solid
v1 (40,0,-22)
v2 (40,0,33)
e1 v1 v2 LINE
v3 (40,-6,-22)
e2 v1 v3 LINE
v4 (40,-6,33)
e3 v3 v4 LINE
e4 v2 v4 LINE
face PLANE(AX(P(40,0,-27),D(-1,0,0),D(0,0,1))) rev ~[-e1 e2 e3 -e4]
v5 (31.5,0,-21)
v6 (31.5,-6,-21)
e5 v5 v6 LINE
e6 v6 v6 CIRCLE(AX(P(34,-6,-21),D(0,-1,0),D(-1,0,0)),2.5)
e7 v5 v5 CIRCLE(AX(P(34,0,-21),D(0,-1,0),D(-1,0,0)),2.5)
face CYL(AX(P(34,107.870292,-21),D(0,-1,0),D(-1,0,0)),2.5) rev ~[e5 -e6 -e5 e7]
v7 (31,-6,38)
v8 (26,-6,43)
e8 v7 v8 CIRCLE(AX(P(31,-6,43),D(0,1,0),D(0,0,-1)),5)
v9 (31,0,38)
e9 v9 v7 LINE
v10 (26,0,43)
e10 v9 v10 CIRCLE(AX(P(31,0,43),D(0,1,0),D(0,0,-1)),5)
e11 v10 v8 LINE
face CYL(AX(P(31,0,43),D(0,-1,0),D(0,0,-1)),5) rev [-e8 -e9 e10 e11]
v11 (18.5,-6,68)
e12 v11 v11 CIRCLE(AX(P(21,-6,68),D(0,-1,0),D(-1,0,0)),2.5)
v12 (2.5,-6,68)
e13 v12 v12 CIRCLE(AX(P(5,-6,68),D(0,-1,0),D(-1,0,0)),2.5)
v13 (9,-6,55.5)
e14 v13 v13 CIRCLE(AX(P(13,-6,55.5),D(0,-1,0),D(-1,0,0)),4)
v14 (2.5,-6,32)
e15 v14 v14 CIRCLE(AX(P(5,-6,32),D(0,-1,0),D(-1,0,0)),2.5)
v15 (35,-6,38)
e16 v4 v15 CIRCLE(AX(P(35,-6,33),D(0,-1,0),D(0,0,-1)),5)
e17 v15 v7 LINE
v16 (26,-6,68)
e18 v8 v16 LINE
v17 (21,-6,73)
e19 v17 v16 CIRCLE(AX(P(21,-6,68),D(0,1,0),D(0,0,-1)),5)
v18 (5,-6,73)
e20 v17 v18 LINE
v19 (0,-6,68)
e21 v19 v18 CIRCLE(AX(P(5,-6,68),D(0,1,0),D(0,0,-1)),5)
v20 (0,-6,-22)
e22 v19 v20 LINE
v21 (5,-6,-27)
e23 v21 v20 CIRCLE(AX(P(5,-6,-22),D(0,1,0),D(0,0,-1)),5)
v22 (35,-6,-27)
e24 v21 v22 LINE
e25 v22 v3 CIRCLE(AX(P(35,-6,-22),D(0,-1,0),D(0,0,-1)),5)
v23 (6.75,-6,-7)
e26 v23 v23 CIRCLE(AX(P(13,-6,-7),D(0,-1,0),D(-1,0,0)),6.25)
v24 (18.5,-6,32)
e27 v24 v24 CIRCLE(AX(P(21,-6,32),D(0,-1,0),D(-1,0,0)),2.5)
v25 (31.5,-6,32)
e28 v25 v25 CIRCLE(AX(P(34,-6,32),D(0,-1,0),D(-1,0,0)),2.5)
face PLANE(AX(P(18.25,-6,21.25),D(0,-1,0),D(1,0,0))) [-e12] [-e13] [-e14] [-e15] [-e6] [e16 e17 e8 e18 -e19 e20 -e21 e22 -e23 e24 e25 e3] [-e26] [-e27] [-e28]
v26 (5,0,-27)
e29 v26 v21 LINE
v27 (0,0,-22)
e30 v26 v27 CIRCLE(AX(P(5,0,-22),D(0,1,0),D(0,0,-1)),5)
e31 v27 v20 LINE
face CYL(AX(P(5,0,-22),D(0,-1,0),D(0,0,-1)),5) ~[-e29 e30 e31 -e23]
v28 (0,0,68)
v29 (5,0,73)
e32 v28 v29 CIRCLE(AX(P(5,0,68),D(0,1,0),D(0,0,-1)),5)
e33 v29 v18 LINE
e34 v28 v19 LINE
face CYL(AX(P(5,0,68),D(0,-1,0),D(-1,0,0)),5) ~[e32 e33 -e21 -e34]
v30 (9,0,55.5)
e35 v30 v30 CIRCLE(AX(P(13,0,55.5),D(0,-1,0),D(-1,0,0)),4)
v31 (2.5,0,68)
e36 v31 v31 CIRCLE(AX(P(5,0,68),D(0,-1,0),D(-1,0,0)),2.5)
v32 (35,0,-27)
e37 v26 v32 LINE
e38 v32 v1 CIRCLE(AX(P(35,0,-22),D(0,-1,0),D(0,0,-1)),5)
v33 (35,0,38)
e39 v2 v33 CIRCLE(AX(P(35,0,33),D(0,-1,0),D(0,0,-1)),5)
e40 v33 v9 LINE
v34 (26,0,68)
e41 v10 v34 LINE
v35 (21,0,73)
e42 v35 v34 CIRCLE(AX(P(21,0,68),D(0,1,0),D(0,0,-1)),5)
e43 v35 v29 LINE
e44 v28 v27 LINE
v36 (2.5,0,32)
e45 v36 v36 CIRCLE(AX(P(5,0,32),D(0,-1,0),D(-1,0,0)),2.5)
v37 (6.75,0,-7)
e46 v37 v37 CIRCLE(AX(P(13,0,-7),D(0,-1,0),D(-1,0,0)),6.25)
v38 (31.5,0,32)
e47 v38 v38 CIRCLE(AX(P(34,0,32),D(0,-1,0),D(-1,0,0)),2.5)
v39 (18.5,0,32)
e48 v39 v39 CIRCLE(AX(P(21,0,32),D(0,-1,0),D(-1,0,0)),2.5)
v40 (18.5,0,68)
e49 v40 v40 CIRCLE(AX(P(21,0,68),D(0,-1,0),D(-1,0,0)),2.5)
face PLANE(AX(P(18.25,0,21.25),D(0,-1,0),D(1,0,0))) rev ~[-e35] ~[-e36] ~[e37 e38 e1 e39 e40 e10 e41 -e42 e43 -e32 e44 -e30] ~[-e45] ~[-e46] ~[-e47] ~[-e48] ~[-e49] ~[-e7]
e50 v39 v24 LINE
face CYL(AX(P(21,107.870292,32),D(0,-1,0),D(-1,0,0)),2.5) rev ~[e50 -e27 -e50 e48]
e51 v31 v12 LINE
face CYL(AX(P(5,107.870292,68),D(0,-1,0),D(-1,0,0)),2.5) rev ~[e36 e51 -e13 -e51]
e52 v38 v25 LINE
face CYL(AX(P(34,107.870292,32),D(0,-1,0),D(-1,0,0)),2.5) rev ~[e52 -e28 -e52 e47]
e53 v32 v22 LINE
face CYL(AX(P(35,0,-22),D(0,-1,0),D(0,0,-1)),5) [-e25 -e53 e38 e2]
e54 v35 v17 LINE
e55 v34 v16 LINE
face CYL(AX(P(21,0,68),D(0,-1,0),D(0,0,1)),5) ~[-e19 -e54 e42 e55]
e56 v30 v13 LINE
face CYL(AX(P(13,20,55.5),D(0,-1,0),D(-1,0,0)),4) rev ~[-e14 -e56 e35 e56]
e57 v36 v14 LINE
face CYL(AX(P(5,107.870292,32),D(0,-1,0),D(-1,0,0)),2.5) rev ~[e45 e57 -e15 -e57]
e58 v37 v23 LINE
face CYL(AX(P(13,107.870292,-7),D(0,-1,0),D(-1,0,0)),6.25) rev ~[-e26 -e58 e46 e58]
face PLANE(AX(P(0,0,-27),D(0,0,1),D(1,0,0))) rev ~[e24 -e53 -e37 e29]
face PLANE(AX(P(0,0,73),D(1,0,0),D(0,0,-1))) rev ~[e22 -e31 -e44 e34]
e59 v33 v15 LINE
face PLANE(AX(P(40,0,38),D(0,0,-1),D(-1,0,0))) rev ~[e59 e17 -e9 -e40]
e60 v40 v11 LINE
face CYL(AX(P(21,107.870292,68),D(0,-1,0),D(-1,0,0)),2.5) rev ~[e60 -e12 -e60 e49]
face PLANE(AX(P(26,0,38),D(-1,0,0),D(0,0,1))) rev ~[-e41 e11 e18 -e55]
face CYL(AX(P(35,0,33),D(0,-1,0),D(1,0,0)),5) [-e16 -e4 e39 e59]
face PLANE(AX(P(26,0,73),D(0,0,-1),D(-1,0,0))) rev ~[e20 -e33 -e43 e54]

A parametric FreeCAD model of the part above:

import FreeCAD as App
import Part
import Sketcher
Q = App.Units.Quantity


def edges_at(feature, points):
    """Names of the edges that pass closest to the given points."""
    edges = feature.Shape.Edges
    near = lambda p: min(range(len(edges)), key=lambda i: edges[i].distToShape(Part.Vertex(*p))[0])
    return sorted({f"Edge{near(p) + 1}" for p in points})

doc = App.newDocument("Part")
body = doc.addObject("PartDesign::Body", "Body")

# Sketch on XZ plane
sketch1 = body.newObject("Sketcher::SketchObject", "Sketch")
sketch1.AttachmentSupport = (doc.getObject("XZ_Plane"), [""])
sketch1.MapMode = "FlatFace"
sketch1.addGeometry([
    Part.LineSegment(App.Vector(0, -27, 0), App.Vector(40, -27, 0)),  # 0
    Part.LineSegment(App.Vector(40, -27, 0), App.Vector(40, 38, 0)),  # 1
    Part.LineSegment(App.Vector(40, 38, 0), App.Vector(26, 38, 0)),  # 2
    Part.LineSegment(App.Vector(26, 38, 0), App.Vector(26, 73, 0)),  # 3
    Part.LineSegment(App.Vector(26, 73, 0), App.Vector(0, 73, 0)),  # 4
    Part.LineSegment(App.Vector(0, 73, 0), App.Vector(0, -27, 0)),  # 5
], False)
sketch1.addConstraint([
    Sketcher.Constraint("Coincident", 0, 2, 1, 1),
    Sketcher.Constraint("Coincident", 1, 2, 2, 1),
    Sketcher.Constraint("Coincident", 2, 2, 3, 1),
    Sketcher.Constraint("Coincident", 3, 2, 4, 1),
    Sketcher.Constraint("Coincident", 4, 2, 5, 1),
    Sketcher.Constraint("Coincident", 5, 2, 0, 1),
    Sketcher.Constraint("Horizontal", 0),
    Sketcher.Constraint("Vertical", 1),
    Sketcher.Constraint("Horizontal", 2),
    Sketcher.Constraint("Vertical", 3),
    Sketcher.Constraint("Horizontal", 4),
    Sketcher.Constraint("Vertical", 5),
    Sketcher.Constraint("PointOnObject", 4, 2, -2),
    Sketcher.Constraint("DistanceX", 0, 1, 0, 2, Q("40 mm")),
    Sketcher.Constraint("DistanceX", 2, 2, 2, 1, Q("14 mm")),
    Sketcher.Constraint("DistanceY", 1, 1, 1, 2, Q("65 mm")),
    Sketcher.Constraint("DistanceY", 3, 1, 3, 2, Q("35 mm")),
    Sketcher.Constraint("DistanceY", 0, 2, -1, 1, Q("27 mm")),
])
pad1 = body.newObject("PartDesign::Pad", "Pad")
pad1.Profile = sketch1
pad1.Length = 6

# Sketch on XZ plane
sketch2 = body.newObject("Sketcher::SketchObject", "Sketch001")
sketch2.AttachmentSupport = (doc.getObject("XZ_Plane"), [""])
sketch2.MapMode = "FlatFace"
sketch2.addGeometry(Part.Circle(App.Vector(13, -7, 0), App.Vector(0, 0, 1), 6), False)
sketch2.addConstraint([
    Sketcher.Constraint("Diameter", 0, Q("12.5 mm")),
    Sketcher.Constraint("DistanceX", -1, 1, 0, 3, Q("13 mm")),
    Sketcher.Constraint("DistanceY", 0, 3, -1, 1, Q("7 mm")),
])
doc.recompute()
hole = body.newObject("PartDesign::Hole", "Hole")
hole.Profile = sketch2
hole.ThreadType = "None"
hole.Diameter = 12.5
hole.DepthType = "ThroughAll"
hole.Reversed = True

# Sketch on XZ plane
sketch3 = body.newObject("Sketcher::SketchObject", "Sketch002")
sketch3.AttachmentSupport = (doc.getObject("XZ_Plane"), [""])
sketch3.MapMode = "FlatFace"
sketch3.addGeometry([
    Part.Circle(App.Vector(34, -21, 0), App.Vector(0, 0, 1), 2.5),
    Part.Circle(App.Vector(34, 32, 0), App.Vector(0, 0, 1), 2.5),
], False)
sketch3.addConstraint([
    Sketcher.Constraint("Equal", 0, 1),
    Sketcher.Constraint("Vertical", 0, 3, 1, 3),
    Sketcher.Constraint("Diameter", 0, Q("5 mm")),
    Sketcher.Constraint("DistanceX", -1, 1, 0, 3, Q("34 mm")),
    Sketcher.Constraint("DistanceY", 0, 3, -1, 1, Q("21 mm")),
    Sketcher.Constraint("DistanceY", -1, 1, 1, 3, Q("32 mm")),
])
doc.recompute()
hole2 = body.newObject("PartDesign::Hole", "Hole001")
hole2.Profile = sketch3
hole2.ThreadType = "None"
hole2.Diameter = 5
hole2.DepthType = "ThroughAll"
hole2.Reversed = True

# Sketch on XZ plane
sketch4 = body.newObject("Sketcher::SketchObject", "Sketch003")
sketch4.AttachmentSupport = (doc.getObject("XZ_Plane"), [""])
sketch4.MapMode = "FlatFace"
sketch4.addGeometry([
    Part.Circle(App.Vector(5, 32, 0), App.Vector(0, 0, 1), 2.5),
    Part.Circle(App.Vector(21, 32, 0), App.Vector(0, 0, 1), 2.5),
], False)
sketch4.addConstraint([
    Sketcher.Constraint("Equal", 0, 1),
    Sketcher.Constraint("Horizontal", 0, 3, 1, 3),
    Sketcher.Constraint("Diameter", 0, Q("5 mm")),
    Sketcher.Constraint("DistanceX", -1, 1, 0, 3, Q("5 mm")),
    Sketcher.Constraint("DistanceY", -1, 1, 0, 3, Q("32 mm")),
    Sketcher.Constraint("DistanceX", -1, 1, 1, 3, Q("21 mm")),
])
doc.recompute()
hole3 = body.newObject("PartDesign::Hole", "Hole002")
hole3.Profile = sketch4
hole3.ThreadType = "None"
hole3.Diameter = 5
hole3.DepthType = "ThroughAll"
hole3.Reversed = True

# Sketch on XZ plane
sketch5 = body.newObject("Sketcher::SketchObject", "Sketch004")
sketch5.AttachmentSupport = (doc.getObject("XZ_Plane"), [""])
sketch5.MapMode = "FlatFace"
sketch5.addGeometry([
    Part.Circle(App.Vector(5, 68, 0), App.Vector(0, 0, 1), 2.5),
    Part.Circle(App.Vector(21, 68, 0), App.Vector(0, 0, 1), 2.5),
], False)
sketch5.addConstraint([
    Sketcher.Constraint("Equal", 0, 1),
    Sketcher.Constraint("Horizontal", 0, 3, 1, 3),
    Sketcher.Constraint("Diameter", 0, Q("5 mm")),
    Sketcher.Constraint("DistanceX", -1, 1, 0, 3, Q("5 mm")),
    Sketcher.Constraint("DistanceY", -1, 1, 0, 3, Q("68 mm")),
    Sketcher.Constraint("DistanceX", -1, 1, 1, 3, Q("21 mm")),
])
doc.recompute()
hole4 = body.newObject("PartDesign::Hole", "Hole003")
hole4.Profile = sketch5
hole4.ThreadType = "None"
hole4.Diameter = 5
hole4.DepthType = "ThroughAll"
hole4.Reversed = True
doc.recompute()

fillet = body.newObject("PartDesign::Fillet", "Fillet")
fillet.Base = (hole4, edges_at(hole4, [
    (0, -3, 73),
    (26, -3, 73),
    (26, -3, 38),
    (40, -3, 38),
    (40, -3, -27),
    (0, -3, -27),
]))
fillet.Radius = 5

# Sketch on XZ plane
sketch6 = body.newObject("Sketcher::SketchObject", "Sketch005")
sketch6.AttachmentSupport = (doc.getObject("XZ_Plane"), [""])
sketch6.MapMode = "FlatFace"
sketch6.addGeometry(Part.Circle(App.Vector(13, 55.5, 0), App.Vector(0, 0, 1), 4), False)
sketch6.addConstraint([
    Sketcher.Constraint("Diameter", 0, Q("8 mm")),
    Sketcher.Constraint("DistanceX", -1, 1, 0, 3, Q("13 mm")),
    Sketcher.Constraint("DistanceY", -1, 1, 0, 3, Q("55.5 mm")),
])
doc.recompute()
hole5 = body.newObject("PartDesign::Hole", "Hole004")
hole5.Profile = sketch6
hole5.ThreadType = "None"
hole5.Diameter = 8
hole5.DepthType = "Dimension"
hole5.Depth = 20
hole5.DrillPoint = "Angled"
hole5.DrillPointAngle = 118
hole5.Reversed = True

doc.recompute()
